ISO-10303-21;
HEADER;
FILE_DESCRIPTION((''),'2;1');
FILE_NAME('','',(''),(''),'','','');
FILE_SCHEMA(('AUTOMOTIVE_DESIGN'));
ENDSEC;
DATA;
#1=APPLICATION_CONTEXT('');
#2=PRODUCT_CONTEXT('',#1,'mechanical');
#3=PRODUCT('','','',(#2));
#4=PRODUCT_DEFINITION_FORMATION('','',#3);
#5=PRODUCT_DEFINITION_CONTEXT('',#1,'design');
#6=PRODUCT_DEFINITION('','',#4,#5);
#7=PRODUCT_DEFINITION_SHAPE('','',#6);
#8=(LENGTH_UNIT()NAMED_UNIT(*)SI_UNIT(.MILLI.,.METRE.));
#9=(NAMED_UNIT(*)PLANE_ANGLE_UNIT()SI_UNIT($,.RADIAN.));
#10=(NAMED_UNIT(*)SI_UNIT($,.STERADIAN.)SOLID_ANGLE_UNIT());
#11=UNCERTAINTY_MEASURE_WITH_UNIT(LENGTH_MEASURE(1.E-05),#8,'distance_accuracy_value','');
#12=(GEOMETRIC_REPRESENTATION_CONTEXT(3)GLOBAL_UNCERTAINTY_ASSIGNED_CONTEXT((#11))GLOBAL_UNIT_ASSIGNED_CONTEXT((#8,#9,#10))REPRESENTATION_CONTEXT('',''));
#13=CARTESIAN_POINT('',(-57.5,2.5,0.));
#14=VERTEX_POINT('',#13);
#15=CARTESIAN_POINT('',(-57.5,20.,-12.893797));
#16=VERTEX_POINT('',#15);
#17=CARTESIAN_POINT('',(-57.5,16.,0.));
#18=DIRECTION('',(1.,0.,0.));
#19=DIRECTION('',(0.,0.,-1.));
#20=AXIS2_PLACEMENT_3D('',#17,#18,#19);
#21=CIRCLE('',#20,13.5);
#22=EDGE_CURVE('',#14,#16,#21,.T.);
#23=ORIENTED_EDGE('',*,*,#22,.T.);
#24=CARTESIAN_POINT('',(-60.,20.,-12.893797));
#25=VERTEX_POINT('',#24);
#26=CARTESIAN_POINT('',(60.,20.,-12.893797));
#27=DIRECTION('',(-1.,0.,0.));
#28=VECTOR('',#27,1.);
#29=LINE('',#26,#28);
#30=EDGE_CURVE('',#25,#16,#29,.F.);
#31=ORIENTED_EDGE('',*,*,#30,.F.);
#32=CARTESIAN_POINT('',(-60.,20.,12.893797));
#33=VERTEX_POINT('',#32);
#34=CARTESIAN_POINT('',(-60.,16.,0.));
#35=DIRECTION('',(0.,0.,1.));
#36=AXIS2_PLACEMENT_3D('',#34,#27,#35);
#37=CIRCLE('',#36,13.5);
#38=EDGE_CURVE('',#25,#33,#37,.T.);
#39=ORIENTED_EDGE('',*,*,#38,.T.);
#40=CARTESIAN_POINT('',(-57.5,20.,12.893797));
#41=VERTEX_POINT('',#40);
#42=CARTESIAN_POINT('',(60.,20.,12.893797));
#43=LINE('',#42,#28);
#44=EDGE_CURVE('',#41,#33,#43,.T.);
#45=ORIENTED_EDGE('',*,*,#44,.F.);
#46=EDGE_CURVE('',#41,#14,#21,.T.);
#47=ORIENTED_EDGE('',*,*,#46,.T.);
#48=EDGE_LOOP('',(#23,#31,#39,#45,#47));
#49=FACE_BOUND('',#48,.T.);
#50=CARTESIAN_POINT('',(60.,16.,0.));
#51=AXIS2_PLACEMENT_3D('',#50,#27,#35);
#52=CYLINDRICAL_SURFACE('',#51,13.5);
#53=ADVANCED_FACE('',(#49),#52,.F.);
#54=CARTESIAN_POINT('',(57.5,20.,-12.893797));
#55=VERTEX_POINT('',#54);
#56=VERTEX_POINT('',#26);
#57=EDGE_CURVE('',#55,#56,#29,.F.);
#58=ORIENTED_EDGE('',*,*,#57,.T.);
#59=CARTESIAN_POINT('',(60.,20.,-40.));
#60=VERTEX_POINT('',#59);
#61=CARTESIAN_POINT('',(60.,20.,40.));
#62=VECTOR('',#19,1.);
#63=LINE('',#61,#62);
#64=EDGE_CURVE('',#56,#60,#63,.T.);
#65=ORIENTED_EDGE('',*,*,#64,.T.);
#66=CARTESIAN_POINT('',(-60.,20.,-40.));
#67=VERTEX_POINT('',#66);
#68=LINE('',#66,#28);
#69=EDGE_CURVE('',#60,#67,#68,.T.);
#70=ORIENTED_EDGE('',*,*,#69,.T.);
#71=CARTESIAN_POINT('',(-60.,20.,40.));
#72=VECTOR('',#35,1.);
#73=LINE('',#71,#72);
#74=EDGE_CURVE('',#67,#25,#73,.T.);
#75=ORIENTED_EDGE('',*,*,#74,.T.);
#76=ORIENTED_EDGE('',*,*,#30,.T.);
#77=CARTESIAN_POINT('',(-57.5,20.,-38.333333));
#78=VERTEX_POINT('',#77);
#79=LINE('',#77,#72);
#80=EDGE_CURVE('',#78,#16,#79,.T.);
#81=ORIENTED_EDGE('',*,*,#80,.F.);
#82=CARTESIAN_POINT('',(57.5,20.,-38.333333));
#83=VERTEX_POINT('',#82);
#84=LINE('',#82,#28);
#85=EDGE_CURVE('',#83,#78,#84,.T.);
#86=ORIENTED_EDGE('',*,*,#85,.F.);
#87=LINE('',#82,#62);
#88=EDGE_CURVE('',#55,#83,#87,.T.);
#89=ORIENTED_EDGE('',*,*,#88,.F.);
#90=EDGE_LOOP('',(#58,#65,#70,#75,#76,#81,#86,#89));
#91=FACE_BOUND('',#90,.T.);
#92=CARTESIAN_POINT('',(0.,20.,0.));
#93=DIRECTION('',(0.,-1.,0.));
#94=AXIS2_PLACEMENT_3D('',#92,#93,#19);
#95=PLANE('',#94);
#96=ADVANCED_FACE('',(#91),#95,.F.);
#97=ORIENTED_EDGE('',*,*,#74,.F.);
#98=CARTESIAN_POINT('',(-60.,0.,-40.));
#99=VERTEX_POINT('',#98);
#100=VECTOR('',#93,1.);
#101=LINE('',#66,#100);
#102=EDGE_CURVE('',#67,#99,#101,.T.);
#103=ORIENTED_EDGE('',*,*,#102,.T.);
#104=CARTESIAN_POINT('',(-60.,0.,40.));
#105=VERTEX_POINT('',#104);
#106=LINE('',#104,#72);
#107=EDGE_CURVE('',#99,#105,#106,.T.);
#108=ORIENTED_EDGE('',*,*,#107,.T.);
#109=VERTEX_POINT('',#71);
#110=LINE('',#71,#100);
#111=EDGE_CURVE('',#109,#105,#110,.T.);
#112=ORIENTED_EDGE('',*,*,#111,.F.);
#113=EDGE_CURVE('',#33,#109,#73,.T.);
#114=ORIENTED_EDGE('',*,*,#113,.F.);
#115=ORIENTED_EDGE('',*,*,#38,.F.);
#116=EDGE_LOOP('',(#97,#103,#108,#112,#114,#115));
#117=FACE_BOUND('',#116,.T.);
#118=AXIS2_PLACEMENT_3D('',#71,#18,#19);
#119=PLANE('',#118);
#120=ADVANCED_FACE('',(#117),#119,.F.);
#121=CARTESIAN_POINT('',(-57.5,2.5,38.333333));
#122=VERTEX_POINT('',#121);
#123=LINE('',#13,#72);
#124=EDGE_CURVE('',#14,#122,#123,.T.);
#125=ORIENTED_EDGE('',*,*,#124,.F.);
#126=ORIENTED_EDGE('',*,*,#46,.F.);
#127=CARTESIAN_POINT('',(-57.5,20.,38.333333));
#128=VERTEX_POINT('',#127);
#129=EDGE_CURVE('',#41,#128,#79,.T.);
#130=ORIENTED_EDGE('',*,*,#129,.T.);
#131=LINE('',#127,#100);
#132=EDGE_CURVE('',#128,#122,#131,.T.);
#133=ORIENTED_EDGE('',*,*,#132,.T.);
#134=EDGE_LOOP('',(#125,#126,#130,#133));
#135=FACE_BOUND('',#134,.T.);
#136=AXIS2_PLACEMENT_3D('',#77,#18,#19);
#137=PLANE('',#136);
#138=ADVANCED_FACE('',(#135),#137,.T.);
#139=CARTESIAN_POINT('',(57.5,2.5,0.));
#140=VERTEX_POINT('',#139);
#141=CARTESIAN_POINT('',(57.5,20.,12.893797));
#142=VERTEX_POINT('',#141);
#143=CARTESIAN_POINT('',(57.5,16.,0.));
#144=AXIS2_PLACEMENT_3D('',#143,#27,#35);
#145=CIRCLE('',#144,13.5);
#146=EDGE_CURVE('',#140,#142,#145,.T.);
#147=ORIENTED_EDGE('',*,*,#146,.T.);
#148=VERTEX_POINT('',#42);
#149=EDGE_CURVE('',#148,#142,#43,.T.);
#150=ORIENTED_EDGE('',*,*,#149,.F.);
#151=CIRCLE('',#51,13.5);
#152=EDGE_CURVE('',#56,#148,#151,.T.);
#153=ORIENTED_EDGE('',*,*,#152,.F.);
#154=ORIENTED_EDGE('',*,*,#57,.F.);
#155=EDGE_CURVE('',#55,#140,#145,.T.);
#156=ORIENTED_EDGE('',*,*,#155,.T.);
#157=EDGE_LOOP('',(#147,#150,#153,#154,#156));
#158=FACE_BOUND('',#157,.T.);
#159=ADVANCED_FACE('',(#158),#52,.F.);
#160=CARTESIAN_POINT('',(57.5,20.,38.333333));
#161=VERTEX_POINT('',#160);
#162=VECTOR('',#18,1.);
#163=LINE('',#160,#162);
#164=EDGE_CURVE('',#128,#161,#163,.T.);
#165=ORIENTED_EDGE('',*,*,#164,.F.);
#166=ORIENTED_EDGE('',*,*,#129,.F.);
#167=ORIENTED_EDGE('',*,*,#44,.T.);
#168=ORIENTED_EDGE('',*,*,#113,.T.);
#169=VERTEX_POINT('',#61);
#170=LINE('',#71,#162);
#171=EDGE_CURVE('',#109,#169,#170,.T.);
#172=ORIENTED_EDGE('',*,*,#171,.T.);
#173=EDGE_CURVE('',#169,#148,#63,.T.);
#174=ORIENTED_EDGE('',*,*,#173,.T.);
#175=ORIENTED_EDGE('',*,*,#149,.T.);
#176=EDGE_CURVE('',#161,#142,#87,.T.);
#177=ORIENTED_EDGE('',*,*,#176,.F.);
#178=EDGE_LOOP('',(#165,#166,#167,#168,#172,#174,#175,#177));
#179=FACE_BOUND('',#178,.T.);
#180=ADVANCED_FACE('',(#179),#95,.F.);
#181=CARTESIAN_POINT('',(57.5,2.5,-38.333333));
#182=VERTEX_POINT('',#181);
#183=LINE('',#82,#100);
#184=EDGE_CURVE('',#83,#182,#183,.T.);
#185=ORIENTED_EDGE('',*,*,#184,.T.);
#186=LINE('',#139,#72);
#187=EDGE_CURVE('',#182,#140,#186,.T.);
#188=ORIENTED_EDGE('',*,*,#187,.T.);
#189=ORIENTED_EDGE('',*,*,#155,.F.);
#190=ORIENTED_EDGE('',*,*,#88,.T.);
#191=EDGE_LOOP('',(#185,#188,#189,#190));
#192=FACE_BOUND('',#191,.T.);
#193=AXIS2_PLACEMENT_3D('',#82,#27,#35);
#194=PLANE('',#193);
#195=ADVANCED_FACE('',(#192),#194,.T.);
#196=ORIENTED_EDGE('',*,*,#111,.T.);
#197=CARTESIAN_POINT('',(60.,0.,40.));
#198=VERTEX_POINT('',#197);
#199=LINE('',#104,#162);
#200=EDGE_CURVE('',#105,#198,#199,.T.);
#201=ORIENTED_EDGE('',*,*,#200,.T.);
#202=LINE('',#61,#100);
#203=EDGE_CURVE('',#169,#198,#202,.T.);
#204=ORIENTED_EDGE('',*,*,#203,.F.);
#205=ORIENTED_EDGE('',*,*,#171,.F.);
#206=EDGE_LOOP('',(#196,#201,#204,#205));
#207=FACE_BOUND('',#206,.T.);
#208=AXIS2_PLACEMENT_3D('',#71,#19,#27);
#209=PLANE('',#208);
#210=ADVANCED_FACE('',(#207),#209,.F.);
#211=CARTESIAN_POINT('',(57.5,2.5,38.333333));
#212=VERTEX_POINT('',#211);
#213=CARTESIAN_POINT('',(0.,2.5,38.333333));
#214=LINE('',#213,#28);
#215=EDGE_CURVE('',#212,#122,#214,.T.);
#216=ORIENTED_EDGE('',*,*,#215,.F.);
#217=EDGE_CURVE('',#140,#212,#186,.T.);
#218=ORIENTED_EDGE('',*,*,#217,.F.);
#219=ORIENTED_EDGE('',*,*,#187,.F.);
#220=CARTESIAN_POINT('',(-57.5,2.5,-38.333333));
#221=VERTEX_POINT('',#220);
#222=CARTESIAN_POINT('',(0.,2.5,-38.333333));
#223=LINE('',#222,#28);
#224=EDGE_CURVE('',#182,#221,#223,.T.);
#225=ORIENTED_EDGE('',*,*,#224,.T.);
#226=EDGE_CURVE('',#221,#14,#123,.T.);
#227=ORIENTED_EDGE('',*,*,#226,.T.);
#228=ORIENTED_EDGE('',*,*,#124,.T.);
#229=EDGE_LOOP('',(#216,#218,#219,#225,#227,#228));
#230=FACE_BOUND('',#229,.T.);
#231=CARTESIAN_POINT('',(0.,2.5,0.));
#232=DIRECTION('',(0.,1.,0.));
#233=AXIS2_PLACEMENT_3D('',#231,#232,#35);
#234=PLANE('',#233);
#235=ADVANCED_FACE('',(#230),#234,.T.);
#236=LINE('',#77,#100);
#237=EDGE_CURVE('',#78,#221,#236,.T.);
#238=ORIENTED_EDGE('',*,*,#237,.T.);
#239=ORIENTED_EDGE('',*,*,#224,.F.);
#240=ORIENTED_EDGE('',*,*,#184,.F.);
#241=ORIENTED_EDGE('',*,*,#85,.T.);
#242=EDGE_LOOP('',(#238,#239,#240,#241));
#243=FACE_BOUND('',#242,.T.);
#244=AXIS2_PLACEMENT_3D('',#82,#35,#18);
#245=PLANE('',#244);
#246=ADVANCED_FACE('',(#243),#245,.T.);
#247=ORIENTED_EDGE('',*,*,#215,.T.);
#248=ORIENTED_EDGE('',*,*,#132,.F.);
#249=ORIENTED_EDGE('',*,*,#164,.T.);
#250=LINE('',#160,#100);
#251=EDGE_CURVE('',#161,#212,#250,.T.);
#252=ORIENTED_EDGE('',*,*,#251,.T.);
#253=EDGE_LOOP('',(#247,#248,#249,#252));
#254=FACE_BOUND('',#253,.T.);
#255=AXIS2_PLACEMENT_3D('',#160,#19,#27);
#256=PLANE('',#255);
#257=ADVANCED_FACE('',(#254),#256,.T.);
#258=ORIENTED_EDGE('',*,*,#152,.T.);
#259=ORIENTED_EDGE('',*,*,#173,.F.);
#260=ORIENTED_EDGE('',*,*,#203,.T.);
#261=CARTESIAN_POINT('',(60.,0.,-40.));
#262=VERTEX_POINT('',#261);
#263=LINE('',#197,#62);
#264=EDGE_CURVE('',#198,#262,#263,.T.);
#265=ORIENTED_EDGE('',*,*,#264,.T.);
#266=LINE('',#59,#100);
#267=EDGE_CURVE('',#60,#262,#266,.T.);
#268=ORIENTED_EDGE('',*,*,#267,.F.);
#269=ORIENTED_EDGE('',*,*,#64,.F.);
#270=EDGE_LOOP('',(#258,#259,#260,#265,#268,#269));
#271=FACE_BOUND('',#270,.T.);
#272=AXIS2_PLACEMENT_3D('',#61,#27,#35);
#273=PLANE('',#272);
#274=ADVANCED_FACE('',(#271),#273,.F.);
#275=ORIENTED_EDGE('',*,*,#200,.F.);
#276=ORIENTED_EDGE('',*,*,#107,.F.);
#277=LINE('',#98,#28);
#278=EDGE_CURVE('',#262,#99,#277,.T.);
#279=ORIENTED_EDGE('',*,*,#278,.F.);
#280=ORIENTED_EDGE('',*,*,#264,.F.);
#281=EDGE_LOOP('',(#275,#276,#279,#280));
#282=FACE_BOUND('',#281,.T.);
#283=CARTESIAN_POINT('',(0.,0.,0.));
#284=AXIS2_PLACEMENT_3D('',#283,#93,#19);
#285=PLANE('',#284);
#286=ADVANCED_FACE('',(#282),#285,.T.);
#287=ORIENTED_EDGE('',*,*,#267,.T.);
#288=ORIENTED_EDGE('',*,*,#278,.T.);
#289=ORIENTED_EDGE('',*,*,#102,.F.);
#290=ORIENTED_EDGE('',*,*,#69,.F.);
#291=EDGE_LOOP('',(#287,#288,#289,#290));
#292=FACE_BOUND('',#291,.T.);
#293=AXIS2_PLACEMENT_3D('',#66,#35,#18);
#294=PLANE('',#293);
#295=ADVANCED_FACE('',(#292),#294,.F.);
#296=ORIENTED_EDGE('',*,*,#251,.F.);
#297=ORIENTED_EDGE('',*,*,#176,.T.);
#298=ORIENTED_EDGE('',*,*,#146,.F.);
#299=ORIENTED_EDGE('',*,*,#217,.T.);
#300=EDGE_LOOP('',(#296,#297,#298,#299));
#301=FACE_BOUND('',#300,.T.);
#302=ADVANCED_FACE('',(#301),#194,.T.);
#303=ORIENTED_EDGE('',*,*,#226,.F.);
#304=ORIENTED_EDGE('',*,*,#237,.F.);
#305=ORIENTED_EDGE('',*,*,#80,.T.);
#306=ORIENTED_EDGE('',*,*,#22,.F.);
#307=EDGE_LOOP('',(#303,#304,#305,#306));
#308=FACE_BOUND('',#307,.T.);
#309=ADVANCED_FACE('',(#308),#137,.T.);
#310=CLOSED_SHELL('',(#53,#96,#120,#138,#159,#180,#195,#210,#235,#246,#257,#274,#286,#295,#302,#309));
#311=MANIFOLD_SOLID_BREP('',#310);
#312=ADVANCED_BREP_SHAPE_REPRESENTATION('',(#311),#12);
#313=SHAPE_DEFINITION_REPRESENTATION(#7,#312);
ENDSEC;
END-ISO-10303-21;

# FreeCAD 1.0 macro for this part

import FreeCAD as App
import Part
import Sketcher

V = App.Vector
Q = App.Units.Quantity


def add_polygon(sketch, points):
    """Adds a closed chain of lines whose ends are joined by coincident constraints."""
    first, n = sketch.GeometryCount, len(points)
    for a, b in zip(points, points[1:] + points[:1]):
        sketch.addGeometry(Part.LineSegment(App.Vector(*a, 0), App.Vector(*b, 0)), False)
    for i in range(n):
        sketch.addConstraint(Sketcher.Constraint("Coincident", first + i, 2, first + (i + 1) % n, 1))

doc = App.newDocument("Part")
body = doc.addObject("PartDesign::Body", "Body")

sketch1 = body.newObject("Sketcher::SketchObject", "Sketch")
sketch1.AttachmentSupport = (doc.getObject("XZ_Plane"), [""])
sketch1.MapMode = "FlatFace"
add_polygon(sketch1, [(-60, -40), (-60, 40), (60, 40), (60, -40)])
add_polygon(sketch1, [(57.5, 38.333333), (-57.5, 38.333333), (-57.5, -38.333333), (57.5, -38.333333)])
sketch1.addConstraint([
    Sketcher.Constraint("Vertical", 0),
    Sketcher.Constraint("Horizontal", 1),
    Sketcher.Constraint("Vertical", 2),
    Sketcher.Constraint("Horizontal", 3),
    Sketcher.Constraint("Horizontal", 4),
    Sketcher.Constraint("Vertical", 5),
    Sketcher.Constraint("Horizontal", 6),
    Sketcher.Constraint("Vertical", 7),
    Sketcher.Constraint("Symmetric", 0, 2, 2, 2, -1, 1),
    Sketcher.Constraint("Symmetric", 4, 2, 6, 2, -1, 1),
    Sketcher.Constraint("DistanceX", 1, 1, 1, 2, Q("120 mm")),
    Sketcher.Constraint("DistanceX", 4, 2, 4, 1, Q("115 mm")),
    Sketcher.Constraint("DistanceY", 0, 1, 0, 2, Q("80 mm")),
    Sketcher.Constraint("DistanceY", 5, 2, 5, 1, Q("76.666667 mm")),
])
pad1 = body.newObject("PartDesign::Pad", "Pad")
pad1.Profile = sketch1
pad1.Length = 20
pad1.Reversed = True

sketch2 = body.newObject("Sketcher::SketchObject", "Sketch001")
sketch2.AttachmentSupport = (doc.getObject("XZ_Plane"), [""])
sketch2.MapMode = "FlatFace"
add_polygon(sketch2, [(-57.5, -38.333333), (-57.5, 38.333333), (57.5, 38.333333), (57.5, -38.333333)])
sketch2.addConstraint([
    Sketcher.Constraint("Vertical", 0),
    Sketcher.Constraint("Horizontal", 1),
    Sketcher.Constraint("Vertical", 2),
    Sketcher.Constraint("Horizontal", 3),
    Sketcher.Constraint("Symmetric", 0, 2, 2, 2, -1, 1),
    Sketcher.Constraint("DistanceX", 1, 1, 1, 2, Q("115 mm")),
    Sketcher.Constraint("DistanceY", 0, 1, 0, 2, Q("76.666667 mm")),
])
pad2 = body.newObject("PartDesign::Pad", "Pad001")
pad2.Profile = sketch2
pad2.Length = 2.5
pad2.Reversed = True

sketch3 = body.newObject("Sketcher::SketchObject", "Sketch002")
sketch3.AttachmentSupport = (doc.getObject("YZ_Plane"), [""])
sketch3.MapMode = "FlatFace"
sketch3.AttachmentOffset = App.Placement(V(0, 0, -60), App.Rotation())
sketch3.addGeometry(Part.Circle(V(16, 0, 0), V(0, 0, 1), 13.5), False)
sketch3.addConstraint([
    Sketcher.Constraint("PointOnObject", 0, 3, -1),
    Sketcher.Constraint("Diameter", 0, Q("27 mm")),
    Sketcher.Constraint("DistanceX", -1, 1, 0, 3, Q("16 mm")),
])
pocket1 = body.newObject("PartDesign::Pocket", "Pocket")
pocket1.Profile = sketch3
pocket1.Type = "ThroughAll"
pocket1.Reversed = True

doc.recompute()
